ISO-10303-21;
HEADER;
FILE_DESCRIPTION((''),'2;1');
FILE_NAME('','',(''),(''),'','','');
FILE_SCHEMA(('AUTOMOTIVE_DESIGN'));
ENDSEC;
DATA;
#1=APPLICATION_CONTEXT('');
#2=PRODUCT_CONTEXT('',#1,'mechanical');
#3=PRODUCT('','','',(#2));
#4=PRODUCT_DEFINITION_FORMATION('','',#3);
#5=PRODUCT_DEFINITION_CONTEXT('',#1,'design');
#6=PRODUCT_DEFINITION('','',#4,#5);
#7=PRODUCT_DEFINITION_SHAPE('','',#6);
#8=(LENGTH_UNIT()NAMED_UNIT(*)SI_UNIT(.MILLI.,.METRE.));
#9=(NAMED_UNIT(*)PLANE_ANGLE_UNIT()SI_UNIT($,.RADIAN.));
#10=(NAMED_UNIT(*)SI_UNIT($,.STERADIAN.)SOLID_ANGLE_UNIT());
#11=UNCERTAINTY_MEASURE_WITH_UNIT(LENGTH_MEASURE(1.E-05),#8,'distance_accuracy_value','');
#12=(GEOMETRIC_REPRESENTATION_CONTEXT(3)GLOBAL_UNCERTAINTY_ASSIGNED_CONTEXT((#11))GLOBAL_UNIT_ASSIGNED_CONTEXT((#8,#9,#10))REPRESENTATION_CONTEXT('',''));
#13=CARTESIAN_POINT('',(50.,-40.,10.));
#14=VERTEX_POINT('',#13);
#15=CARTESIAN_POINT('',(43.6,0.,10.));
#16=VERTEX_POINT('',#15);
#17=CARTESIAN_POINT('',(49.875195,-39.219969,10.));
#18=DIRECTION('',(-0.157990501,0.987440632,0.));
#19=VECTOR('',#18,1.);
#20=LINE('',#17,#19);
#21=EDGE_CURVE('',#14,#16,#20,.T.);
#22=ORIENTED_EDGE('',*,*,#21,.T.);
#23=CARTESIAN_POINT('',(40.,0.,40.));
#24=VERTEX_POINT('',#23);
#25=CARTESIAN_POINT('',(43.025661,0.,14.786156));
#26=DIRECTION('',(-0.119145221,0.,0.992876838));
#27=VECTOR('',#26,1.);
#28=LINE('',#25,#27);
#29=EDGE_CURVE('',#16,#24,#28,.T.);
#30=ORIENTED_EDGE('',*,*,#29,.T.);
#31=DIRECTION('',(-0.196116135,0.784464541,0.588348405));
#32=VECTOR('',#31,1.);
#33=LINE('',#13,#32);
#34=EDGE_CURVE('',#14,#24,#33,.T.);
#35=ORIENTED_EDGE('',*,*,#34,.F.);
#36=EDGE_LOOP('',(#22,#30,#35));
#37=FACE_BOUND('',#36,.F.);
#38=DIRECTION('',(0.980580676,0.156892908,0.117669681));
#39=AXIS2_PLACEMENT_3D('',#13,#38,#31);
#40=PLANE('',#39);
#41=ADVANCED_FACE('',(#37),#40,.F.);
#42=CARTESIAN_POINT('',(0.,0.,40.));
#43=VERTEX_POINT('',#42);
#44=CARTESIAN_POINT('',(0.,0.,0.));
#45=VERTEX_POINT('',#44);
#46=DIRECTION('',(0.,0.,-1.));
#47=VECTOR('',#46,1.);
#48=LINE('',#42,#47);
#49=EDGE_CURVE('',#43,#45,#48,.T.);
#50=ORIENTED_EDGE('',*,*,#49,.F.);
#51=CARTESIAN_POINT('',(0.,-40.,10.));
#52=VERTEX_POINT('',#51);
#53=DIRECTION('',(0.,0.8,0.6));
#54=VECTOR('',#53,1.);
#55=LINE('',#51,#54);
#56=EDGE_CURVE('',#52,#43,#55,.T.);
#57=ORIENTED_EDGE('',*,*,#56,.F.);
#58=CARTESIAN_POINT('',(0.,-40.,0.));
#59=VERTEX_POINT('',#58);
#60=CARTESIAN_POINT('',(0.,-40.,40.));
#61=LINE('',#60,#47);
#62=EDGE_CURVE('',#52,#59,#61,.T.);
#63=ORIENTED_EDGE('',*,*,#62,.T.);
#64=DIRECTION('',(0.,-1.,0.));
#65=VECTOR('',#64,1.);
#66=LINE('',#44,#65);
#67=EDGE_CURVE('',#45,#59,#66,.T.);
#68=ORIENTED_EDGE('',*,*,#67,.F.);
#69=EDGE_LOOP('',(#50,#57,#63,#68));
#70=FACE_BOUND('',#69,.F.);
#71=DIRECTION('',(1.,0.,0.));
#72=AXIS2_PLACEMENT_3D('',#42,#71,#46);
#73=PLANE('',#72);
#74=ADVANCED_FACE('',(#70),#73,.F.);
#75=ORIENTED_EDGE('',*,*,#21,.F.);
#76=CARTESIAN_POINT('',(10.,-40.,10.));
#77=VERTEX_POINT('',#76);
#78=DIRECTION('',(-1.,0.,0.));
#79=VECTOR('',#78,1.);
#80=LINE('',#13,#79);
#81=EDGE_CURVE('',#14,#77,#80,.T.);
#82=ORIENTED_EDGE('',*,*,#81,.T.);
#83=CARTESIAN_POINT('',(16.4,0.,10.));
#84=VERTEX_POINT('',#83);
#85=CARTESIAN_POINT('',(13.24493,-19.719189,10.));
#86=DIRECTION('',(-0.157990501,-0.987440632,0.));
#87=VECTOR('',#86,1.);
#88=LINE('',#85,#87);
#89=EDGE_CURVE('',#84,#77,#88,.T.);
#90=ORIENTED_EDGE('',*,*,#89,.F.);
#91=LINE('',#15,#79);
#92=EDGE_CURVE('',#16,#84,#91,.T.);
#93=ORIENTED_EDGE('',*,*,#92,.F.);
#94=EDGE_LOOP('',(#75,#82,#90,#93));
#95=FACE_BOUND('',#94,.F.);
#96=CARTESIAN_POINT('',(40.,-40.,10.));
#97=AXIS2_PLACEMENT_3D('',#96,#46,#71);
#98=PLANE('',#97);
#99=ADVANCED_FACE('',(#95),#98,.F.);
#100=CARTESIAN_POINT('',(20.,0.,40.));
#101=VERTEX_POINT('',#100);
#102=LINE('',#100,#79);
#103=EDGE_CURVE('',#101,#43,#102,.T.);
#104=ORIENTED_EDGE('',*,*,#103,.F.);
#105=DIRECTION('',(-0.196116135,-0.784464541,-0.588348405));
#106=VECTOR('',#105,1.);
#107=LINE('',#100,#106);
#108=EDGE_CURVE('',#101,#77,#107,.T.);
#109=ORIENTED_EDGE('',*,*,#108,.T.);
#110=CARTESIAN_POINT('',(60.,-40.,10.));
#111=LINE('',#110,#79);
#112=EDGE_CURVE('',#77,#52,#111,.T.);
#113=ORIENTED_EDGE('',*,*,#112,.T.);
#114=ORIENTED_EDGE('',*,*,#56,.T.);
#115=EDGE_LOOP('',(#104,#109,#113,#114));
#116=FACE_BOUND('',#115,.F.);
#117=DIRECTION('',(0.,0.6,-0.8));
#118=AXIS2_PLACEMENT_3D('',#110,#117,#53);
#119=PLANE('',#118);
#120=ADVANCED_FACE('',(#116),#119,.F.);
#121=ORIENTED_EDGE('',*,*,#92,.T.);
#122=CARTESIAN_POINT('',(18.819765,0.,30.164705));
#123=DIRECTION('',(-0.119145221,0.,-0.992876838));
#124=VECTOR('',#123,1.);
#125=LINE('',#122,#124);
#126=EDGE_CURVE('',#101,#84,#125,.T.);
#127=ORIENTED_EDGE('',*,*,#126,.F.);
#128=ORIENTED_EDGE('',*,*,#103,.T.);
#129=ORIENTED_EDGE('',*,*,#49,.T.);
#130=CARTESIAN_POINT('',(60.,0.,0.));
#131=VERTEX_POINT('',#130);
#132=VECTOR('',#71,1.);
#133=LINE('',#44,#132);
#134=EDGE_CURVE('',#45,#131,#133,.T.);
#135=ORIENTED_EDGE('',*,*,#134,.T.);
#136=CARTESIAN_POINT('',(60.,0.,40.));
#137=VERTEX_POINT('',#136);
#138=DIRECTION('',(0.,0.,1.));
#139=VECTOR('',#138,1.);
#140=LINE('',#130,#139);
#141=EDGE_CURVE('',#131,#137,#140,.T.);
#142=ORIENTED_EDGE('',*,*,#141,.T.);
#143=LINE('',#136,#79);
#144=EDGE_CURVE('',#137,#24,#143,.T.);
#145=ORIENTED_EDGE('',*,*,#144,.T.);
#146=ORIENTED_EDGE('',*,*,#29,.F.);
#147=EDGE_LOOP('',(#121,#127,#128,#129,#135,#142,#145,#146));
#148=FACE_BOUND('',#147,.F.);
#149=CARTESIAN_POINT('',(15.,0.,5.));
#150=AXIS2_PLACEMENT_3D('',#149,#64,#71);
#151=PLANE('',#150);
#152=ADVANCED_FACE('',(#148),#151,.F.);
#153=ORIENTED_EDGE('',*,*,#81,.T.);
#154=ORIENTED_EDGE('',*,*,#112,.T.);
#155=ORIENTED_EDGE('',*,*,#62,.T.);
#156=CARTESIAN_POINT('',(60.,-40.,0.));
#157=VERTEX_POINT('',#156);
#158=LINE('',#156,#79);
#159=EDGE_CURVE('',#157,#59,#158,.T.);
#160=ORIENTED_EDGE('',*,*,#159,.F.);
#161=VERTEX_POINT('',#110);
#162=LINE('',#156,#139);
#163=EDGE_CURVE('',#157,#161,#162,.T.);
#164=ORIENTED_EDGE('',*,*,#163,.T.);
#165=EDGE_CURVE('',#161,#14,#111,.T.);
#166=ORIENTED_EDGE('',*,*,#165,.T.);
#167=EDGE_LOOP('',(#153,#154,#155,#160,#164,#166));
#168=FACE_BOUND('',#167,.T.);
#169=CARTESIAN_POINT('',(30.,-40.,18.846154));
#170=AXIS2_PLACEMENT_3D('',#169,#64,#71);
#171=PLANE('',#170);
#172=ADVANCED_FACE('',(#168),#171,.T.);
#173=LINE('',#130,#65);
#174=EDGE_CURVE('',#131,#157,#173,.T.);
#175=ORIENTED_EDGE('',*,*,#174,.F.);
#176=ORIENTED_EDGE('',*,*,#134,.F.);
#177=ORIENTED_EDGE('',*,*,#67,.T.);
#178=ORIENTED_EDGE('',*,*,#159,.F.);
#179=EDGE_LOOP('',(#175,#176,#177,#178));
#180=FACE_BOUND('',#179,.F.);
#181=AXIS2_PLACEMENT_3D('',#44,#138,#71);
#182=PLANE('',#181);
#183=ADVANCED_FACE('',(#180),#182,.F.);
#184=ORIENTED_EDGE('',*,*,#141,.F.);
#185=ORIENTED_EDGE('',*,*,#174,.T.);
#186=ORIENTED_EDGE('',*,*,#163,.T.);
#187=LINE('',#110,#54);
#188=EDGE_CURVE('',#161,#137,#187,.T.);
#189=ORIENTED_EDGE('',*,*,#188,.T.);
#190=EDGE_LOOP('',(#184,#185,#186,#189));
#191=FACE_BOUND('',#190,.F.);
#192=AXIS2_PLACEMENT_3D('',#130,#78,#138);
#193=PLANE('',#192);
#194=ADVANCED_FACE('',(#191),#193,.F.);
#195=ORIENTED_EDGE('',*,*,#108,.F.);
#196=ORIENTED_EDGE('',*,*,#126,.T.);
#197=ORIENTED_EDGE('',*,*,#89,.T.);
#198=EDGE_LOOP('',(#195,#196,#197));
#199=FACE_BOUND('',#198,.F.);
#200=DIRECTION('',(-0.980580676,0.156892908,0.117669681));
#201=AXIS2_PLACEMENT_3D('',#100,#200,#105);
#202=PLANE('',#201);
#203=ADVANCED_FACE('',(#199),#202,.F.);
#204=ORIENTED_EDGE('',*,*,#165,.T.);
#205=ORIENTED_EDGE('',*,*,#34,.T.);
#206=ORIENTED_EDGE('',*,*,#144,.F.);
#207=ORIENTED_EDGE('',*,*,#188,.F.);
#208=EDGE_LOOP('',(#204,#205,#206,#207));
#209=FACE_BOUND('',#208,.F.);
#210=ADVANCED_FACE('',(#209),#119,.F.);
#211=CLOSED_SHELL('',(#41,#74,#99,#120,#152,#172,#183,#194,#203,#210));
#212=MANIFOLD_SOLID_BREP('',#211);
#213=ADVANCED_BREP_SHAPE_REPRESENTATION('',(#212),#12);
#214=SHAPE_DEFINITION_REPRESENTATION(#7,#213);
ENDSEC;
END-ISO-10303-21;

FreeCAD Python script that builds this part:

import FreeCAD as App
import Part
import Sketcher

V = App.Vector

doc = App.newDocument("Part")
body = doc.addObject("PartDesign::Body", "Body")

sketch1 = body.newObject("Sketcher::SketchObject", "Sketch")
sketch1.AttachmentSupport = (doc.getObject("XZ_Plane"), [""])
sketch1.MapMode = "FlatFace"
sketch1.addGeometry([
    Part.LineSegment(V(0, 40, 0), V(0, 0, 0)),
    Part.LineSegment(V(0, 0, 0), V(60, 0, 0)),
    Part.LineSegment(V(60, 0, 0), V(60, 40, 0)),
    Part.LineSegment(V(60, 40, 0), V(40, 40, 0)),
    Part.LineSegment(V(40, 40, 0), V(40, 10, 0)),
    Part.LineSegment(V(40, 10, 0), V(20, 10, 0)),
    Part.LineSegment(V(20, 10, 0), V(20, 40, 0)),
    Part.LineSegment(V(20, 40, 0), V(0, 40, 0)),
], False)
sketch1.addConstraint([
    Sketcher.Constraint("Coincident", 0, 2, 1, 1),
    Sketcher.Constraint("Coincident", 1, 2, 2, 1),
    Sketcher.Constraint("Coincident", 2, 2, 3, 1),
    Sketcher.Constraint("Coincident", 3, 2, 4, 1),
    Sketcher.Constraint("Coincident", 4, 2, 5, 1),
    Sketcher.Constraint("Coincident", 5, 2, 6, 1),
    Sketcher.Constraint("Coincident", 6, 2, 7, 1),
    Sketcher.Constraint("Coincident", 7, 2, 0, 1),
    Sketcher.Constraint("Vertical", 0),
    Sketcher.Constraint("Horizontal", 1),
    Sketcher.Constraint("Vertical", 2),
    Sketcher.Constraint("Horizontal", 3),
    Sketcher.Constraint("Vertical", 4),
    Sketcher.Constraint("Horizontal", 5),
    Sketcher.Constraint("Vertical", 6),
    Sketcher.Constraint("Horizontal", 7),
    Sketcher.Constraint("Coincident", 0, 2, -1, 1),
    Sketcher.Constraint("Horizontal", 3, 2, 6, 2),
    Sketcher.Constraint("Equal", 3, 5),
    Sketcher.Constraint("Equal", 5, 7),
    Sketcher.Constraint("DistanceX", 1, 1, 1, 2, 60.0),
    Sketcher.Constraint("DistanceY", 0, 2, 0, 1, 40.0),
    Sketcher.Constraint("DistanceY", 4, 2, 4, 1, 30.0),
])
pad1 = body.newObject("PartDesign::Pad", "Pad")
pad1.Profile = sketch1
pad1.Length = 40

sketch2 = body.newObject("Sketcher::SketchObject", "Sketch001")
sketch2.AttachmentSupport = (doc.getObject("YZ_Plane"), [""])
sketch2.MapMode = "FlatFace"
sketch2.AttachmentOffset = App.Placement(V(0, 0, 60), App.Rotation())
sketch2.addGeometry([
    Part.LineSegment(V(-40, 10, 0), V(0, 40, 0)),
    Part.LineSegment(V(0, 40, 0), V(-40, 40, 0)),
    Part.LineSegment(V(-40, 40, 0), V(-40, 10, 0)),
], False)
sketch2.addConstraint([
    Sketcher.Constraint("Coincident", 0, 2, 1, 1),
    Sketcher.Constraint("Coincident", 1, 2, 2, 1),
    Sketcher.Constraint("Coincident", 2, 2, 0, 1),
    Sketcher.Constraint("Horizontal", 1),
    Sketcher.Constraint("Vertical", 2),
    Sketcher.Constraint("PointOnObject", 0, 2, -2),
    Sketcher.Constraint("DistanceX", 1, 2, 1, 1, 40.0),
    Sketcher.Constraint("DistanceY", 2, 2, 2, 1, 30.0),
    Sketcher.Constraint("DistanceY", -1, 1, 0, 2, 40.0),
])
pocket1 = body.newObject("PartDesign::Pocket", "Pocket")
pocket1.Profile = sketch2
pocket1.Length = 60

sketch3 = body.newObject("Sketcher::SketchObject", "Sketch002")
sketch3.Placement = App.Placement(V(0, -19.2, 25.6), App.Rotation(V(1, 0, 0), V(0, 0.8, 0.6), V(0, -0.6, 0.8), "ZXY"))
sketch3.addGeometry([
    Part.LineSegment(V(20, -26, 0), V(20, 24, 0)),
    Part.LineSegment(V(20, 24, 0), V(10, -26, 0)),
    Part.LineSegment(V(10, -26, 0), V(20, -26, 0)),
], False)
sketch3.addConstraint([
    Sketcher.Constraint("Coincident", 0, 2, 1, 1),
    Sketcher.Constraint("Coincident", 1, 2, 2, 1),
    Sketcher.Constraint("Coincident", 2, 2, 0, 1),
    Sketcher.Constraint("Vertical", 0),
    Sketcher.Constraint("Horizontal", 2),
    Sketcher.Constraint("DistanceX", 2, 1, 2, 2, 10.0),
    Sketcher.Constraint("DistanceY", 0, 1, 0, 2, 50.0),
    Sketcher.Constraint("DistanceX", -1, 1, 0, 2, 20.0),
    Sketcher.Constraint("DistanceY", -1, 1, 0, 2, 24.0),
])
pocket2 = body.newObject("PartDesign::Pocket", "Pocket001")
pocket2.Profile = sketch3
pocket2.Length = 40

sketch4 = body.newObject("Sketcher::SketchObject", "Sketch003")
sketch4.Placement = App.Placement(V(0, -19.2, 25.6), App.Rotation(V(1, 0, 0), V(0, 0.8, 0.6), V(0, -0.6, 0.8), "ZXY"))
sketch4.addGeometry([
    Part.LineSegment(V(50, -26, 0), V(40, 24, 0)),
    Part.LineSegment(V(40, 24, 0), V(40, -26, 0)),
    Part.LineSegment(V(40, -26, 0), V(50, -26, 0)),
], False)
sketch4.addConstraint([
    Sketcher.Constraint("Coincident", 0, 2, 1, 1),
    Sketcher.Constraint("Coincident", 1, 2, 2, 1),
    Sketcher.Constraint("Coincident", 2, 2, 0, 1),
    Sketcher.Constraint("Vertical", 1),
    Sketcher.Constraint("Horizontal", 2),
    Sketcher.Constraint("DistanceX", 2, 1, 2, 2, 10.0),
    Sketcher.Constraint("DistanceY", 1, 2, 1, 1, 50.0),
    Sketcher.Constraint("DistanceX", -1, 1, 0, 2, 40.0),
    Sketcher.Constraint("DistanceY", -1, 1, 0, 2, 24.0),
])
pocket3 = body.newObject("PartDesign::Pocket", "Pocket002")
pocket3.Profile = sketch4
pocket3.Length = 40

sketch5 = body.newObject("Sketcher::SketchObject", "Sketch004")
sketch5.AttachmentSupport = (doc.getObject("XZ_Plane"), [""])
sketch5.MapMode = "FlatFace"
sketch5.AttachmentOffset = App.Placement(V(0, 0, 40), App.Rotation())
sketch5.addGeometry([
    Part.LineSegment(V(10, 10, 0), V(10, 0, 0)),
    Part.LineSegment(V(10, 0, 0), V(20, 0, 0)),
    Part.LineSegment(V(20, 0, 0), V(20, 10, 0)),
    Part.LineSegment(V(20, 10, 0), V(10, 10, 0)),
], False)
sketch5.addConstraint([
    Sketcher.Constraint("Coincident", 0, 2, 1, 1),
    Sketcher.Constraint("Coincident", 1, 2, 2, 1),
    Sketcher.Constraint("Coincident", 2, 2, 3, 1),
    Sketcher.Constraint("Coincident", 3, 2, 0, 1),
    Sketcher.Constraint("Vertical", 0),
    Sketcher.Constraint("Horizontal", 1),
    Sketcher.Constraint("Vertical", 2),
    Sketcher.Constraint("Horizontal", 3),
    Sketcher.Constraint("PointOnObject", 0, 2, -1),
    Sketcher.Constraint("Equal", 3, 0),
    Sketcher.Constraint("DistanceX", 1, 1, 1, 2, 10.0),
    Sketcher.Constraint("DistanceX", -1, 1, 0, 2, 10.0),
])
pad2 = body.newObject("PartDesign::Pad", "Pad001")
pad2.Profile = sketch5
pad2.Length = 40
pad2.Reversed = True

sketch6 = body.newObject("Sketcher::SketchObject", "Sketch005")
sketch6.AttachmentSupport = (doc.getObject("XZ_Plane"), [""])
sketch6.MapMode = "FlatFace"
sketch6.AttachmentOffset = App.Placement(V(0, 0, 40), App.Rotation())
sketch6.addGeometry([
    Part.LineSegment(V(40, 10, 0), V(40, 0, 0)),
    Part.LineSegment(V(40, 0, 0), V(50, 0, 0)),
    Part.LineSegment(V(50, 0, 0), V(50, 10, 0)),
    Part.LineSegment(V(50, 10, 0), V(40, 10, 0)),
], False)
sketch6.addConstraint([
    Sketcher.Constraint("Coincident", 0, 2, 1, 1),
    Sketcher.Constraint("Coincident", 1, 2, 2, 1),
    Sketcher.Constraint("Coincident", 2, 2, 3, 1),
    Sketcher.Constraint("Coincident", 3, 2, 0, 1),
    Sketcher.Constraint("Vertical", 0),
    Sketcher.Constraint("Horizontal", 1),
    Sketcher.Constraint("Vertical", 2),
    Sketcher.Constraint("Horizontal", 3),
    Sketcher.Constraint("PointOnObject", 0, 2, -1),
    Sketcher.Constraint("Equal", 3, 0),
    Sketcher.Constraint("DistanceX", 1, 1, 1, 2, 10.0),
    Sketcher.Constraint("DistanceX", -1, 1, 0, 2, 40.0),
])
pad3 = body.newObject("PartDesign::Pad", "Pad002")
pad3.Profile = sketch6
pad3.Length = 40
pad3.Reversed = True

doc.recompute()
